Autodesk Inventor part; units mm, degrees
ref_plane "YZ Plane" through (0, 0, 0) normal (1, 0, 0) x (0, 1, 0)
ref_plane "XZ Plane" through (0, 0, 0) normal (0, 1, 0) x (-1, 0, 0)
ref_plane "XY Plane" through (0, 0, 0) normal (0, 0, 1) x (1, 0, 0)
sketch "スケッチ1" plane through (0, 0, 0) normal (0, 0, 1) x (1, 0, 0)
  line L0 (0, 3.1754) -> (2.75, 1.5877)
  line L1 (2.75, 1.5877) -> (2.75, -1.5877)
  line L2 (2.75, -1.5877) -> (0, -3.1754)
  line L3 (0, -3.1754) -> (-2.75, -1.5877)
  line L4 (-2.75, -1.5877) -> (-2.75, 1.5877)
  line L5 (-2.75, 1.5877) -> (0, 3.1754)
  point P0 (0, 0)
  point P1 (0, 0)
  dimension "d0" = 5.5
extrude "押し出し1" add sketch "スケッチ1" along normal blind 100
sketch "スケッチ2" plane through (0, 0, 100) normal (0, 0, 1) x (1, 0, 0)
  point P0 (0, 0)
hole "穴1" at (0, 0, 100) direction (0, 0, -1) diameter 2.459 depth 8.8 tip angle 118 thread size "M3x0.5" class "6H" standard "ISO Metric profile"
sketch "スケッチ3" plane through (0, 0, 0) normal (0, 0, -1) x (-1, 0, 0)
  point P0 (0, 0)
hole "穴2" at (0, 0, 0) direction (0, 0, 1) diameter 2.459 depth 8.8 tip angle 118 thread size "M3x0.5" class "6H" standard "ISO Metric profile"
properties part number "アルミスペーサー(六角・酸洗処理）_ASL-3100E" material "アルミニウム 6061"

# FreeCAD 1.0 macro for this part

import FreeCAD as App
import Part
import Sketcher
from FreeCAD import Vector
Q = App.Units.Quantity

doc = App.newDocument("Part")
params = doc.addObject("Spreadsheet::Sheet", "Params")
for row, (alias, value) in enumerate([
    ("pad1_length", "100 mm"),
    ("hole_diameter", "2.459 mm"),
    ("hole_depth", "8.8 mm"),
    ("hole2_diameter", "2.459 mm"),
    ("hole2_depth", "8.8 mm"),
], start=1):
    params.set(f"A{row}", alias)
    params.set(f"B{row}", "=" + value)
    params.setAlias(f"B{row}", alias)

body = doc.addObject("PartDesign::Body", "Body")

sketch1 = body.newObject("Sketcher::SketchObject", "Sketch")
sketch1.AttachmentSupport = (doc.getObject("XY_Plane"), [""])
sketch1.MapMode = "FlatFace"
sketch1.addGeometry(Part.LineSegment(Vector(2.75, 1.5877, 0), Vector(0, 3.1754, 0)), False)
sketch1.addGeometry(Part.LineSegment(Vector(0, 3.1754, 0), Vector(-2.75, 1.5877, 0)), False)
sketch1.addGeometry(Part.LineSegment(Vector(-2.75, 1.5877, 0), Vector(-2.75, -1.5877, 0)), False)
sketch1.addGeometry(Part.LineSegment(Vector(-2.75, -1.5877, 0), Vector(0, -3.1754, 0)), False)
sketch1.addGeometry(Part.LineSegment(Vector(0, -3.1754, 0), Vector(2.75, -1.5877, 0)), False)
sketch1.addGeometry(Part.LineSegment(Vector(2.75, -1.5877, 0), Vector(2.75, 1.5877, 0)), False)
sketch1.addConstraint(Sketcher.Constraint("Coincident", 0, 2, 1, 1))
sketch1.addConstraint(Sketcher.Constraint("Coincident", 1, 2, 2, 1))
sketch1.addConstraint(Sketcher.Constraint("Coincident", 2, 2, 3, 1))
sketch1.addConstraint(Sketcher.Constraint("Coincident", 3, 2, 4, 1))
sketch1.addConstraint(Sketcher.Constraint("Coincident", 4, 2, 5, 1))
sketch1.addConstraint(Sketcher.Constraint("Coincident", 5, 2, 0, 1))
sketch1.addConstraint(Sketcher.Constraint("Vertical", 2))
sketch1.addConstraint(Sketcher.Constraint("Vertical", 5))
sketch1.addConstraint(Sketcher.Constraint("Symmetric", 0, 2, 3, 2, -1, 1))
sketch1.addConstraint(Sketcher.Constraint("Symmetric", 1, 2, 4, 2, -1, 1))
sketch1.addConstraint(Sketcher.Constraint("PointOnObject", 0, 2, -2))
sketch1.addConstraint(Sketcher.Constraint("Parallel", 0, 3))
sketch1.addConstraint(Sketcher.Constraint("Horizontal", 2, 2, 4, 2))
sketch1.addConstraint(Sketcher.Constraint("DistanceX", 2, 2, 4, 2, Q("5.5 mm")))
sketch1.addConstraint(Sketcher.Constraint("Angle", 0, Q("150.0002 deg")))
sketch1.addConstraint(Sketcher.Constraint("DistanceY", 2, 2, 2, 1, Q("3.1754 mm")))
pad1 = body.newObject("PartDesign::Pad", "Pad")
pad1.Profile = sketch1
pad1.setExpression("Length", "Params.pad1_length")

sketch2 = body.newObject("Sketcher::SketchObject", "Sketch001")
sketch2.AttachmentSupport = (doc.getObject("XY_Plane"), [""])
sketch2.MapMode = "FlatFace"
sketch2.AttachmentOffset = App.Placement(Vector(0, 0, 100), App.Rotation())
sketch2.addGeometry(Part.Circle(Vector(0, 0, 0), Vector(0, 0, 1), 1.2295), False)
sketch2.addConstraint(Sketcher.Constraint("Coincident", 0, 3, -1, 1))
sketch2.addConstraint(Sketcher.Constraint("Diameter", 0, Q("2.459 mm")))
doc.recompute()
hole = body.newObject("PartDesign::Hole", "Hole")
hole.Profile = sketch2
hole.ThreadType = "None"
hole.setExpression("Diameter", "Params.hole_diameter")
hole.DepthType = "Dimension"
hole.setExpression("Depth", "Params.hole_depth")
hole.DrillPoint = "Angled"
hole.DrillPointAngle = 118

sketch3 = body.newObject("Sketcher::SketchObject", "Sketch002")
sketch3.AttachmentSupport = (doc.getObject("XY_Plane"), [""])
sketch3.MapMode = "FlatFace"
sketch3.addGeometry(Part.Circle(Vector(0, 0, 0), Vector(0, 0, 1), 1.2295), False)
sketch3.addConstraint(Sketcher.Constraint("Coincident", 0, 3, -1, 1))
sketch3.addConstraint(Sketcher.Constraint("Diameter", 0, Q("2.459 mm")))
doc.recompute()
hole2 = body.newObject("PartDesign::Hole", "Hole001")
hole2.Profile = sketch3
hole2.ThreadType = "None"
hole2.setExpression("Diameter", "Params.hole2_diameter")
hole2.DepthType = "Dimension"
hole2.setExpression("Depth", "Params.hole2_depth")
hole2.DrillPoint = "Angled"
hole2.DrillPointAngle = 118
hole2.Reversed = True

doc.recompute()
